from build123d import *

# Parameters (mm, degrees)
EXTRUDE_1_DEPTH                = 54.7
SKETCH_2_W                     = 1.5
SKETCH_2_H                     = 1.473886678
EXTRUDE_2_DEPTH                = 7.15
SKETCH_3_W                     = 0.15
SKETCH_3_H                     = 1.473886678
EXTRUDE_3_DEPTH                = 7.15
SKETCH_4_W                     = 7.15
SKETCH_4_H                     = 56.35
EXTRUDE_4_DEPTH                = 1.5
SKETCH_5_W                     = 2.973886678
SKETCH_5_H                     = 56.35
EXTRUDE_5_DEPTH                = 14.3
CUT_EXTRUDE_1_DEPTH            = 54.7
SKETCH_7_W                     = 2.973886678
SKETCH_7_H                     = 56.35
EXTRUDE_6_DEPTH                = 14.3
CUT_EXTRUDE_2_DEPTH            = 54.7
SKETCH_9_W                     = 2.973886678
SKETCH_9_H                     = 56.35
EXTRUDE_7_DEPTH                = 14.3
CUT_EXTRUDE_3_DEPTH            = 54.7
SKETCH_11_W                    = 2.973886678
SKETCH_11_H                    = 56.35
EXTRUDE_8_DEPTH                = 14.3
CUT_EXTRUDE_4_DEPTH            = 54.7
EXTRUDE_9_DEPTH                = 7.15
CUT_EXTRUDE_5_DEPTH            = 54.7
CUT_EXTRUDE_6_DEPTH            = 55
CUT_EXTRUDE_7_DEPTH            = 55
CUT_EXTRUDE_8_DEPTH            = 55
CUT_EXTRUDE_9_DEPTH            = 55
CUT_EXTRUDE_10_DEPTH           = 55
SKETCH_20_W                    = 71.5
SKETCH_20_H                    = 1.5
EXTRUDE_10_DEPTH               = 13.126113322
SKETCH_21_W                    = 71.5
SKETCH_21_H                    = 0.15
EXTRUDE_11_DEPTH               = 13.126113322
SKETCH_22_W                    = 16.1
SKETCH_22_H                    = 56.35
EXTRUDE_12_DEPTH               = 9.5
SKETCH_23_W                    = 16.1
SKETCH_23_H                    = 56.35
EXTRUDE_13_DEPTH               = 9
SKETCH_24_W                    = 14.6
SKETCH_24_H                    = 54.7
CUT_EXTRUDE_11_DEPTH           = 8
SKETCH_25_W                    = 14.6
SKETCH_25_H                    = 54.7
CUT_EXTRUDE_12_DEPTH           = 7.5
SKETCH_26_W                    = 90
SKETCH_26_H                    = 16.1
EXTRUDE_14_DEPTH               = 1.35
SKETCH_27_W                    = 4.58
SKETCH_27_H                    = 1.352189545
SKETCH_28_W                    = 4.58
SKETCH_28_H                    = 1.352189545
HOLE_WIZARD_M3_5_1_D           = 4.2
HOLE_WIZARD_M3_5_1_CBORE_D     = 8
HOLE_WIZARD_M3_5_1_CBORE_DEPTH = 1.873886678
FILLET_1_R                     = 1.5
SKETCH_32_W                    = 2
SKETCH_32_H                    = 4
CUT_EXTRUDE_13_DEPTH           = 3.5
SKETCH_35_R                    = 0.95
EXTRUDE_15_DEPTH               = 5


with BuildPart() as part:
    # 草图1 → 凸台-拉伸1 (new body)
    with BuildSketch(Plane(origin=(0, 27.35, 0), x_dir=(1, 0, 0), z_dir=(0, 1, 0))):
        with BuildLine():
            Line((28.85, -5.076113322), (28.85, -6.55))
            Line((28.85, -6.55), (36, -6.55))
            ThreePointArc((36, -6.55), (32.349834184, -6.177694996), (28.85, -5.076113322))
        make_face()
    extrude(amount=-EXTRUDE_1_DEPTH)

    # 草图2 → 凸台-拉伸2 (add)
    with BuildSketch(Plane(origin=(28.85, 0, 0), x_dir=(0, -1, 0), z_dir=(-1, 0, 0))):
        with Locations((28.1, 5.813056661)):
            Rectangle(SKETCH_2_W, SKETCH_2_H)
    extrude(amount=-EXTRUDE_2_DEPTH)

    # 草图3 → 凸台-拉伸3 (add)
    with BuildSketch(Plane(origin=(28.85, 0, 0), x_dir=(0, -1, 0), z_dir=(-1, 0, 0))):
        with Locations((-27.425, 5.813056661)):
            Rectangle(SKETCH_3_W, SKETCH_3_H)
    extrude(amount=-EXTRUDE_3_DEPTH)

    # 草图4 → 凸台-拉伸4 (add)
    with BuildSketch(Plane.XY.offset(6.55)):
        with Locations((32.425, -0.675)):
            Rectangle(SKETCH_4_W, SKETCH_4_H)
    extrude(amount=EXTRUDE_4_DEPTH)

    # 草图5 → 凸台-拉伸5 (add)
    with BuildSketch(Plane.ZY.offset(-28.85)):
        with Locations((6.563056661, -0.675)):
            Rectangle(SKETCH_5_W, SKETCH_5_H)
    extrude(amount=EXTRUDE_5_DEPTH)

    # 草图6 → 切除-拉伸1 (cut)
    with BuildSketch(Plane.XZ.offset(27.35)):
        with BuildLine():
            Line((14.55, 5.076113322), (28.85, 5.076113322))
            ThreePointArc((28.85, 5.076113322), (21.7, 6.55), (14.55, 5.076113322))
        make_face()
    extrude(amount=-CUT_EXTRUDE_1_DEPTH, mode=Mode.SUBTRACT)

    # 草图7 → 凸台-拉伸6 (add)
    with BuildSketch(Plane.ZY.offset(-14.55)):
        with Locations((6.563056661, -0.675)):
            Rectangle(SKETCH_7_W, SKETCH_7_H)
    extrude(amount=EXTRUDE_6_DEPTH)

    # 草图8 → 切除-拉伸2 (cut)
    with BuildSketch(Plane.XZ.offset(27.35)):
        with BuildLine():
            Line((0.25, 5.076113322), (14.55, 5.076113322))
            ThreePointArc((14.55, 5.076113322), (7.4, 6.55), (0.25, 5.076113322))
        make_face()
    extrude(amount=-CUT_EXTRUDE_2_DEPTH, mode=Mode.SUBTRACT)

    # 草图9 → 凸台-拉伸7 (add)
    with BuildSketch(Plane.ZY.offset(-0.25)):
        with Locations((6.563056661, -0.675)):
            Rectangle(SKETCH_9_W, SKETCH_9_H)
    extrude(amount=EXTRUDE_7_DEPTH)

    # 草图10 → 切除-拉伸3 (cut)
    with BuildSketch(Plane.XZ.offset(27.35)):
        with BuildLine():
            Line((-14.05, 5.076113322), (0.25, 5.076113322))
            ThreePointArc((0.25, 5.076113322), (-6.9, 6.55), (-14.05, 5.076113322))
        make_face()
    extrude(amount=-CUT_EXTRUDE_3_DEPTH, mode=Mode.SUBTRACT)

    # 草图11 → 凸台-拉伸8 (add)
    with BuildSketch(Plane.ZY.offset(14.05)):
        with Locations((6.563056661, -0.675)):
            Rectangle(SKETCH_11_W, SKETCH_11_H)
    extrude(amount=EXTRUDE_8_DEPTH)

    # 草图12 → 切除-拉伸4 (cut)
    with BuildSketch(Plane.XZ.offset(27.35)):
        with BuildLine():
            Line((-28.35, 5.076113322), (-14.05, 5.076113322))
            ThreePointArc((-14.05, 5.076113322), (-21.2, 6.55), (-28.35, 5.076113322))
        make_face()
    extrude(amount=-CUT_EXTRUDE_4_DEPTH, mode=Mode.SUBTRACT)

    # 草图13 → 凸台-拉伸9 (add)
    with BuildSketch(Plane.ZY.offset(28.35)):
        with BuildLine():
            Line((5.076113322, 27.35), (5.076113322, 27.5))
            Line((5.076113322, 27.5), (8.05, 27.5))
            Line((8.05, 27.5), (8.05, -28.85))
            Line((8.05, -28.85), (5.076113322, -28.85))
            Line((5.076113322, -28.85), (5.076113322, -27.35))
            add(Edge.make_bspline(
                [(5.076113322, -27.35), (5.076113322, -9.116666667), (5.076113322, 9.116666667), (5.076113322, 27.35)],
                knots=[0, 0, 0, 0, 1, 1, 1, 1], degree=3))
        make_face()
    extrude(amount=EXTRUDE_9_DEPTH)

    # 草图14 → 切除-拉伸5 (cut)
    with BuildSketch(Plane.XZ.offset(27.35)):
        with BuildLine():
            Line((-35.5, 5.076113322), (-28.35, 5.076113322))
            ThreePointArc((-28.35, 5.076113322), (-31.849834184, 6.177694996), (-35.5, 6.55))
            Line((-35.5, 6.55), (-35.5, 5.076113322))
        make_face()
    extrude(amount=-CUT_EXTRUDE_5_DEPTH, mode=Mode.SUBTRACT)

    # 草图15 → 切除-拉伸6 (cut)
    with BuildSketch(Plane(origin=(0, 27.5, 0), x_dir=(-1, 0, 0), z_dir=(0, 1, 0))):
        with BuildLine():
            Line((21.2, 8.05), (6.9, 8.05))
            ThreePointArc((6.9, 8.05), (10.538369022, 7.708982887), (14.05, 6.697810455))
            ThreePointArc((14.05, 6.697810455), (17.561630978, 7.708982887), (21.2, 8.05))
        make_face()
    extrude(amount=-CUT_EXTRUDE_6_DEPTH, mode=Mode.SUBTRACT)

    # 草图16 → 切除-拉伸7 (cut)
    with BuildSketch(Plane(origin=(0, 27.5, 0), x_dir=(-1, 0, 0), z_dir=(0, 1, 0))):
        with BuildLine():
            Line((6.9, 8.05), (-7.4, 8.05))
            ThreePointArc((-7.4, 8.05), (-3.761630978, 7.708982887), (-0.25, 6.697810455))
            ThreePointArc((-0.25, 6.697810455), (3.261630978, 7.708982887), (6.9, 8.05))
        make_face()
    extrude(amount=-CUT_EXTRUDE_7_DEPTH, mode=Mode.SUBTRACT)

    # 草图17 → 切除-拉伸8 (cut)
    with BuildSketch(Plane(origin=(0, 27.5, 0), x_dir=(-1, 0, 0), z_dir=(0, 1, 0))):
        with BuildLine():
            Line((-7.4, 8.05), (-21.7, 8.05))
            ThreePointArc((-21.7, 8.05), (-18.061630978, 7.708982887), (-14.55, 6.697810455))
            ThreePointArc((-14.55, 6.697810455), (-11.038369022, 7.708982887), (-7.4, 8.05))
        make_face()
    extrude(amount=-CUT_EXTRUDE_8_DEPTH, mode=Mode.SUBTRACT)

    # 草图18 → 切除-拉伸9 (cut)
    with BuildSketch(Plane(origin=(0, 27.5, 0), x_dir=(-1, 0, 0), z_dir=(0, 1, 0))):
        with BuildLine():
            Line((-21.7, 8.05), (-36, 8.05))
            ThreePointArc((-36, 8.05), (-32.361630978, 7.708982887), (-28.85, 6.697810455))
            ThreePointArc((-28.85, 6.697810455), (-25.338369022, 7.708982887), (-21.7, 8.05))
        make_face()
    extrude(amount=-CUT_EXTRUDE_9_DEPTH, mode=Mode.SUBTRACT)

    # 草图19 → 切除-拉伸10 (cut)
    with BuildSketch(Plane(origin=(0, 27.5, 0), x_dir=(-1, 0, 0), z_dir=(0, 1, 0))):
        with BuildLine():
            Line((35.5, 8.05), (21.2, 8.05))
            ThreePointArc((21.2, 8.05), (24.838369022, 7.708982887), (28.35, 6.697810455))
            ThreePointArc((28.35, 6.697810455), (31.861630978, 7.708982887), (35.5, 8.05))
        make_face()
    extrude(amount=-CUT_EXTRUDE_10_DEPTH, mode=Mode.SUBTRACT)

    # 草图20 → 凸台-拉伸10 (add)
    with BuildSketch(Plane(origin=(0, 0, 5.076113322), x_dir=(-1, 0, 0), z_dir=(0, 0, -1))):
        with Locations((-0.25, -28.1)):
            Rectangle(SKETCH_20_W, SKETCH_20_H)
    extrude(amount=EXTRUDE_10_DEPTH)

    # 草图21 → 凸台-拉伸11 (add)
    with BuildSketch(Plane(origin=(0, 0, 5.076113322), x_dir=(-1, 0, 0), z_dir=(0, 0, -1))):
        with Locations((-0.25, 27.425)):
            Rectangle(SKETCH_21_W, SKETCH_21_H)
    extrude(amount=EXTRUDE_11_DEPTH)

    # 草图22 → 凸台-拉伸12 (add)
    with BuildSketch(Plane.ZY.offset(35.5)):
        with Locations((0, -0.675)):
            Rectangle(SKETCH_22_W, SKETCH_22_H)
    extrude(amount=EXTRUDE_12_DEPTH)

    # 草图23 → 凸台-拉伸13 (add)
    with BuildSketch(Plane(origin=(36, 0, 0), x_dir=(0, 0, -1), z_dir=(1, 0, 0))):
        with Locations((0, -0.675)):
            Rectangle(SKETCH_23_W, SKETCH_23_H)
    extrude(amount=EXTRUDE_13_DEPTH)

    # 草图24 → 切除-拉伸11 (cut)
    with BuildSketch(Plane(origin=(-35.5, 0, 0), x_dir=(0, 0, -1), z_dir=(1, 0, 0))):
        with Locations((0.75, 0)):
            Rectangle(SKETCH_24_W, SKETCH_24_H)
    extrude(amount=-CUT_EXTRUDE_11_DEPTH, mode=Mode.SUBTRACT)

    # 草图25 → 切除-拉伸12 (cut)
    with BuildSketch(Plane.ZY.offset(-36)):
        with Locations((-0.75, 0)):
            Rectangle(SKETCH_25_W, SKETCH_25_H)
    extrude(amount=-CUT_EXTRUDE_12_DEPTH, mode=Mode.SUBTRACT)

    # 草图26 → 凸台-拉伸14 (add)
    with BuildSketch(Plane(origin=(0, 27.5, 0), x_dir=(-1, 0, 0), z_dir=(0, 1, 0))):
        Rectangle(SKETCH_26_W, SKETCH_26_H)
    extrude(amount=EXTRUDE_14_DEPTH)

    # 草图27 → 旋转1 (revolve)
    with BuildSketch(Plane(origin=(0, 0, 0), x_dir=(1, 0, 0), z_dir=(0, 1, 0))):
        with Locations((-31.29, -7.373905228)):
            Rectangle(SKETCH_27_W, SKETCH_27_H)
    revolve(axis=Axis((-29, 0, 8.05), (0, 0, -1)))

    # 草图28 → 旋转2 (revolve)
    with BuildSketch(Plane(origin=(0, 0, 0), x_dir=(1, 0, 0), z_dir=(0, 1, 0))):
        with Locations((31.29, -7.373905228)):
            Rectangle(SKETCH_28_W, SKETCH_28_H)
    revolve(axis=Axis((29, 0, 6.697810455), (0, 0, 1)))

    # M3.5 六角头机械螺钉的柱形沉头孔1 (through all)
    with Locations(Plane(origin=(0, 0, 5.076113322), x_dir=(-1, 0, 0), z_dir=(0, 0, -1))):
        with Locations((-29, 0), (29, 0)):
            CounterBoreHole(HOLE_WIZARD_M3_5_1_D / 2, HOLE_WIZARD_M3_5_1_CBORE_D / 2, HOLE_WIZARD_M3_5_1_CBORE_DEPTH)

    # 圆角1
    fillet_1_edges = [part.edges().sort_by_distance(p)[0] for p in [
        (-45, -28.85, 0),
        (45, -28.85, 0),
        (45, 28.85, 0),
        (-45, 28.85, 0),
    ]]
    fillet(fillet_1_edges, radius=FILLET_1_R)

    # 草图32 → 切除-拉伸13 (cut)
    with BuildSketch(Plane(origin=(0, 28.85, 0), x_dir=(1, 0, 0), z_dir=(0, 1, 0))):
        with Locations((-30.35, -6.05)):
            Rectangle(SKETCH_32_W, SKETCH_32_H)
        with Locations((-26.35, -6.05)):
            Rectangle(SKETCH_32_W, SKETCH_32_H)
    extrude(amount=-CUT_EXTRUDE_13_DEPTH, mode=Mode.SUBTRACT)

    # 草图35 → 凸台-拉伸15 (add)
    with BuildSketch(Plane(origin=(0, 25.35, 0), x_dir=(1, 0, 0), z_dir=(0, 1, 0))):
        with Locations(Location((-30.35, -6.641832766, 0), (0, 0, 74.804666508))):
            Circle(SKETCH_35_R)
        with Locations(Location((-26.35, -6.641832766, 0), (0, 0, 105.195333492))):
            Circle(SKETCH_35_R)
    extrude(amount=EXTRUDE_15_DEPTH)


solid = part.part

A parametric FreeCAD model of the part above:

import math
import FreeCAD as App
import Part
import Sketcher
Q = App.Units.Quantity


def edges_at(feature, points):
    """Names of the edges that pass closest to the given points."""
    edges = feature.Shape.Edges
    near = lambda p: min(range(len(edges)), key=lambda i: edges[i].distToShape(Part.Vertex(*p))[0])
    return sorted({f"Edge{near(p) + 1}" for p in points})

doc = App.newDocument("Part")
body = doc.addObject("PartDesign::Body", "Body")

# Sketch on XZ plane
sketch1 = body.newObject("Sketcher::SketchObject", "Sketch")
sketch1.AttachmentSupport = (doc.getObject("XZ_Plane"), [""])
sketch1.MapMode = "FlatFace"
sketch1.AttachmentOffset = App.Placement(App.Vector(0, 0, -27.35), App.Rotation())
sketch1.addGeometry([
    Part.LineSegment(App.Vector(28.85, 5.076113, 0), App.Vector(28.85, 6.55, 0)),
    Part.LineSegment(App.Vector(28.85, 6.55, 0), App.Vector(36, 6.55, 0)),
    Part.ArcOfCircle(Part.Circle(App.Vector(36, -11.529695, 0), App.Vector(0, 0, 1), 18.079695), math.radians(90), math.radians(113.29537)),
], False)
sketch1.addConstraint([
    Sketcher.Constraint("Coincident", 0, 2, 1, 1),
    Sketcher.Constraint("Tangent", 1, 2, 2, 1),
    Sketcher.Constraint("Coincident", 2, 2, 0, 1),
    Sketcher.Constraint("Vertical", 0),
    Sketcher.Constraint("Horizontal", 1),
    Sketcher.Constraint("DistanceX", -1, 1, 2, 3, Q("36 mm")),
    Sketcher.Constraint("DistanceX", 1, 1, 1, 2, Q("7.15 mm")),
    Sketcher.Constraint("DistanceY", -1, 1, 0, 2, Q("6.55 mm")),
    Sketcher.Constraint("Radius", 2, Q("18.079695 mm")),
])
pad1 = body.newObject("PartDesign::Pad", "Pad")
pad1.Profile = sketch1
pad1.Length = 54.7

# Sketch on YZ plane
sketch2 = body.newObject("Sketcher::SketchObject", "Sketch001")
sketch2.AttachmentSupport = (doc.getObject("YZ_Plane"), [""])
sketch2.MapMode = "FlatFace"
sketch2.AttachmentOffset = App.Placement(App.Vector(0, 0, 28.85), App.Rotation())
sketch2.addGeometry([
    Part.LineSegment(App.Vector(-27.35, 6.55, 0), App.Vector(-27.35, 5.076113, 0)),
    Part.LineSegment(App.Vector(-27.35, 5.076113, 0), App.Vector(-28.85, 5.076113, 0)),
    Part.LineSegment(App.Vector(-28.85, 5.076113, 0), App.Vector(-28.85, 6.55, 0)),
    Part.LineSegment(App.Vector(-28.85, 6.55, 0), App.Vector(-27.35, 6.55, 0)),
], False)
sketch2.addConstraint([
    Sketcher.Constraint("Coincident", 0, 2, 1, 1),
    Sketcher.Constraint("Coincident", 1, 2, 2, 1),
    Sketcher.Constraint("Coincident", 2, 2, 3, 1),
    Sketcher.Constraint("Coincident", 3, 2, 0, 1),
    Sketcher.Constraint("Vertical", 0),
    Sketcher.Constraint("Horizontal", 1),
    Sketcher.Constraint("Vertical", 2),
    Sketcher.Constraint("Horizontal", 3),
    Sketcher.Constraint("DistanceX", 1, 2, 1, 1, Q("1.5 mm")),
    Sketcher.Constraint("DistanceX", 0, 2, -1, 1, Q("27.35 mm")),
    Sketcher.Constraint("DistanceY", -1, 1, 2, 2, Q("6.55 mm")),
    Sketcher.Constraint("DistanceY", 0, 2, 0, 1, Q("1.473887 mm")),
])
pad2 = body.newObject("PartDesign::Pad", "Pad001")
pad2.Profile = sketch2
pad2.Length = 7.15

# Sketch on YZ plane
sketch3 = body.newObject("Sketcher::SketchObject", "Sketch002")
sketch3.AttachmentSupport = (doc.getObject("YZ_Plane"), [""])
sketch3.MapMode = "FlatFace"
sketch3.AttachmentOffset = App.Placement(App.Vector(0, 0, 28.85), App.Rotation())
sketch3.addGeometry([
    Part.LineSegment(App.Vector(27.5, 6.55, 0), App.Vector(27.5, 5.076113, 0)),
    Part.LineSegment(App.Vector(27.5, 5.076113, 0), App.Vector(27.35, 5.076113, 0)),
    Part.LineSegment(App.Vector(27.35, 5.076113, 0), App.Vector(27.35, 6.55, 0)),
    Part.LineSegment(App.Vector(27.35, 6.55, 0), App.Vector(27.5, 6.55, 0)),
], False)
sketch3.addConstraint([
    Sketcher.Constraint("Coincident", 0, 2, 1, 1),
    Sketcher.Constraint("Coincident", 1, 2, 2, 1),
    Sketcher.Constraint("Coincident", 2, 2, 3, 1),
    Sketcher.Constraint("Coincident", 3, 2, 0, 1),
    Sketcher.Constraint("Vertical", 0),
    Sketcher.Constraint("Horizontal", 1),
    Sketcher.Constraint("Vertical", 2),
    Sketcher.Constraint("Horizontal", 3),
    Sketcher.Constraint("DistanceX", 1, 2, 1, 1, Q("0.15 mm")),
    Sketcher.Constraint("DistanceX", -1, 1, 0, 2, Q("27.5 mm")),
    Sketcher.Constraint("DistanceY", -1, 1, 2, 2, Q("6.55 mm")),
    Sketcher.Constraint("DistanceY", 0, 2, 0, 1, Q("1.473887 mm")),
])
pad3 = body.newObject("PartDesign::Pad", "Pad002")
pad3.Profile = sketch3
pad3.Length = 7.15

# Sketch on XY plane
sketch4 = body.newObject("Sketcher::SketchObject", "Sketch003")
sketch4.AttachmentSupport = (doc.getObject("XY_Plane"), [""])
sketch4.MapMode = "FlatFace"
sketch4.AttachmentOffset = App.Placement(App.Vector(0, 0, 6.55), App.Rotation())
sketch4.addGeometry([
    Part.LineSegment(App.Vector(28.85, 27.5, 0), App.Vector(28.85, -28.85, 0)),
    Part.LineSegment(App.Vector(28.85, -28.85, 0), App.Vector(36, -28.85, 0)),
    Part.LineSegment(App.Vector(36, -28.85, 0), App.Vector(36, 27.5, 0)),
    Part.LineSegment(App.Vector(36, 27.5, 0), App.Vector(28.85, 27.5, 0)),
], False)
sketch4.addConstraint([
    Sketcher.Constraint("Coincident", 0, 2, 1, 1),
    Sketcher.Constraint("Coincident", 1, 2, 2, 1),
    Sketcher.Constraint("Coincident", 2, 2, 3, 1),
    Sketcher.Constraint("Coincident", 3, 2, 0, 1),
    Sketcher.Constraint("Vertical", 0),
    Sketcher.Constraint("Horizontal", 1),
    Sketcher.Constraint("Vertical", 2),
    Sketcher.Constraint("Horizontal", 3),
    Sketcher.Constraint("DistanceX", -1, 1, 1, 2, Q("36 mm")),
    Sketcher.Constraint("DistanceX", 1, 1, 1, 2, Q("7.15 mm")),
    Sketcher.Constraint("DistanceY", 0, 2, 0, 1, Q("56.35 mm")),
    Sketcher.Constraint("DistanceY", -1, 1, 2, 2, Q("27.5 mm")),
])
pad4 = body.newObject("PartDesign::Pad", "Pad003")
pad4.Profile = sketch4
pad4.Length = 1.5

# Sketch on YZ plane
sketch5 = body.newObject("Sketcher::SketchObject", "Sketch004")
sketch5.AttachmentSupport = (doc.getObject("YZ_Plane"), [""])
sketch5.MapMode = "FlatFace"
sketch5.AttachmentOffset = App.Placement(App.Vector(0, 0, 28.85), App.Rotation())
sketch5.addGeometry([
    Part.LineSegment(App.Vector(27.5, 5.076113, 0), App.Vector(-28.85, 5.076113, 0)),
    Part.LineSegment(App.Vector(-28.85, 5.076113, 0), App.Vector(-28.85, 8.05, 0)),
    Part.LineSegment(App.Vector(-28.85, 8.05, 0), App.Vector(27.5, 8.05, 0)),
    Part.LineSegment(App.Vector(27.5, 8.05, 0), App.Vector(27.5, 5.076113, 0)),
], False)
sketch5.addConstraint([
    Sketcher.Constraint("Coincident", 0, 2, 1, 1),
    Sketcher.Constraint("Coincident", 1, 2, 2, 1),
    Sketcher.Constraint("Coincident", 2, 2, 3, 1),
    Sketcher.Constraint("Coincident", 3, 2, 0, 1),
    Sketcher.Constraint("Horizontal", 0),
    Sketcher.Constraint("Vertical", 1),
    Sketcher.Constraint("Horizontal", 2),
    Sketcher.Constraint("Vertical", 3),
    Sketcher.Constraint("DistanceX", 0, 2, 0, 1, Q("56.35 mm")),
    Sketcher.Constraint("DistanceX", -1, 1, 2, 2, Q("27.5 mm")),
    Sketcher.Constraint("DistanceY", -1, 1, 1, 2, Q("8.05 mm")),
    Sketcher.Constraint("DistanceY", 1, 1, 1, 2, Q("2.973887 mm")),
])
pad5 = body.newObject("PartDesign::Pad", "Pad004")
pad5.Profile = sketch5
pad5.Length = 14.3
pad5.Reversed = True

# Sketch on XZ plane
sketch6 = body.newObject("Sketcher::SketchObject", "Sketch005")
sketch6.AttachmentSupport = (doc.getObject("XZ_Plane"), [""])
sketch6.MapMode = "FlatFace"
sketch6.AttachmentOffset = App.Placement(App.Vector(0, 0, 27.35), App.Rotation())
sketch6.addGeometry([
    Part.LineSegment(App.Vector(14.55, 5.076113, 0), App.Vector(28.85, 5.076113, 0)),
    Part.ArcOfCircle(Part.Circle(App.Vector(21.7, -11.529695, 0), App.Vector(0, 0, 1), 18.079695), math.radians(66.70463), math.radians(113.29537)),
], False)
sketch6.addConstraint([
    Sketcher.Constraint("Coincident", 0, 1, 1, 2),
    Sketcher.Constraint("Coincident", 1, 1, 0, 2),
    Sketcher.Constraint("Horizontal", 0),
    Sketcher.Constraint("DistanceX", 0, 1, 0, 2, Q("14.3 mm")),
    Sketcher.Constraint("DistanceX", -1, 1, 1, 3, Q("21.7 mm")),
    Sketcher.Constraint("Radius", 1, Q("18.079695 mm")),
    Sketcher.Constraint("DistanceY", 1, 3, -1, 1, Q("11.529695 mm")),
])
pocket1 = body.newObject("PartDesign::Pocket", "Pocket")
pocket1.Profile = sketch6
pocket1.Length = 54.7

# Sketch on YZ plane
sketch7 = body.newObject("Sketcher::SketchObject", "Sketch006")
sketch7.AttachmentSupport = (doc.getObject("YZ_Plane"), [""])
sketch7.MapMode = "FlatFace"
sketch7.AttachmentOffset = App.Placement(App.Vector(0, 0, 14.55), App.Rotation())
sketch7.addGeometry([
    Part.LineSegment(App.Vector(27.5, 5.076113, 0), App.Vector(-28.85, 5.076113, 0)),
    Part.LineSegment(App.Vector(-28.85, 5.076113, 0), App.Vector(-28.85, 8.05, 0)),
    Part.LineSegment(App.Vector(-28.85, 8.05, 0), App.Vector(27.5, 8.05, 0)),
    Part.LineSegment(App.Vector(27.5, 8.05, 0), App.Vector(27.5, 5.076113, 0)),
], False)
sketch7.addConstraint([
    Sketcher.Constraint("Coincident", 0, 2, 1, 1),
    Sketcher.Constraint("Coincident", 1, 2, 2, 1),
    Sketcher.Constraint("Coincident", 2, 2, 3, 1),
    Sketcher.Constraint("Coincident", 3, 2, 0, 1),
    Sketcher.Constraint("Horizontal", 0),
    Sketcher.Constraint("Vertical", 1),
    Sketcher.Constraint("Horizontal", 2),
    Sketcher.Constraint("Vertical", 3),
    Sketcher.Constraint("DistanceX", 0, 2, 0, 1, Q("56.35 mm")),
    Sketcher.Constraint("DistanceX", -1, 1, 2, 2, Q("27.5 mm")),
    Sketcher.Constraint("DistanceY", -1, 1, 1, 2, Q("8.05 mm")),
    Sketcher.Constraint("DistanceY", 1, 1, 1, 2, Q("2.973887 mm")),
])
pad6 = body.newObject("PartDesign::Pad", "Pad005")
pad6.Profile = sketch7
pad6.Length = 14.3
pad6.Reversed = True

# Sketch on XZ plane
sketch8 = body.newObject("Sketcher::SketchObject", "Sketch007")
sketch8.AttachmentSupport = (doc.getObject("XZ_Plane"), [""])
sketch8.MapMode = "FlatFace"
sketch8.AttachmentOffset = App.Placement(App.Vector(0, 0, 27.35), App.Rotation())
sketch8.addGeometry([
    Part.LineSegment(App.Vector(0.25, 5.076113, 0), App.Vector(14.55, 5.076113, 0)),
    Part.ArcOfCircle(Part.Circle(App.Vector(7.4, -11.529695, 0), App.Vector(0, 0, 1), 18.079695), math.radians(66.70463), math.radians(113.29537)),
], False)
sketch8.addConstraint([
    Sketcher.Constraint("Coincident", 0, 1, 1, 2),
    Sketcher.Constraint("Coincident", 1, 1, 0, 2),
    Sketcher.Constraint("Horizontal", 0),
    Sketcher.Constraint("DistanceX", 0, 1, 0, 2, Q("14.3 mm")),
    Sketcher.Constraint("DistanceX", -1, 1, 1, 3, Q("7.4 mm")),
    Sketcher.Constraint("Radius", 1, Q("18.079695 mm")),
    Sketcher.Constraint("DistanceY", 1, 3, -1, 1, Q("11.529695 mm")),
])
pocket2 = body.newObject("PartDesign::Pocket", "Pocket001")
pocket2.Profile = sketch8
pocket2.Length = 54.7

# Sketch on YZ plane
sketch9 = body.newObject("Sketcher::SketchObject", "Sketch008")
sketch9.AttachmentSupport = (doc.getObject("YZ_Plane"), [""])
sketch9.MapMode = "FlatFace"
sketch9.AttachmentOffset = App.Placement(App.Vector(0, 0, 0.25), App.Rotation())
sketch9.addGeometry([
    Part.LineSegment(App.Vector(27.5, 5.076113, 0), App.Vector(-28.85, 5.076113, 0)),
    Part.LineSegment(App.Vector(-28.85, 5.076113, 0), App.Vector(-28.85, 8.05, 0)),
    Part.LineSegment(App.Vector(-28.85, 8.05, 0), App.Vector(27.5, 8.05, 0)),
    Part.LineSegment(App.Vector(27.5, 8.05, 0), App.Vector(27.5, 5.076113, 0)),
], False)
sketch9.addConstraint([
    Sketcher.Constraint("Coincident", 0, 2, 1, 1),
    Sketcher.Constraint("Coincident", 1, 2, 2, 1),
    Sketcher.Constraint("Coincident", 2, 2, 3, 1),
    Sketcher.Constraint("Coincident", 3, 2, 0, 1),
    Sketcher.Constraint("Horizontal", 0),
    Sketcher.Constraint("Vertical", 1),
    Sketcher.Constraint("Horizontal", 2),
    Sketcher.Constraint("Vertical", 3),
    Sketcher.Constraint("DistanceX", 0, 2, 0, 1, Q("56.35 mm")),
    Sketcher.Constraint("DistanceX", -1, 1, 2, 2, Q("27.5 mm")),
    Sketcher.Constraint("DistanceY", -1, 1, 1, 2, Q("8.05 mm")),
    Sketcher.Constraint("DistanceY", 1, 1, 1, 2, Q("2.973887 mm")),
])
pad7 = body.newObject("PartDesign::Pad", "Pad006")
pad7.Profile = sketch9
pad7.Length = 14.3
pad7.Reversed = True

# Sketch on XZ plane
sketch10 = body.newObject("Sketcher::SketchObject", "Sketch009")
sketch10.AttachmentSupport = (doc.getObject("XZ_Plane"), [""])
sketch10.MapMode = "FlatFace"
sketch10.AttachmentOffset = App.Placement(App.Vector(0, 0, 27.35), App.Rotation())
sketch10.addGeometry([
    Part.LineSegment(App.Vector(-14.05, 5.076113, 0), App.Vector(0.25, 5.076113, 0)),
    Part.ArcOfCircle(Part.Circle(App.Vector(-6.9, -11.529695, 0), App.Vector(0, 0, 1), 18.079695), math.radians(66.70463), math.radians(113.29537)),
], False)
sketch10.addConstraint([
    Sketcher.Constraint("Coincident", 0, 1, 1, 2),
    Sketcher.Constraint("Coincident", 1, 1, 0, 2),
    Sketcher.Constraint("Horizontal", 0),
    Sketcher.Constraint("DistanceX", 0, 1, 0, 2, Q("14.3 mm")),
    Sketcher.Constraint("DistanceX", 1, 3, -1, 1, Q("6.9 mm")),
    Sketcher.Constraint("Radius", 1, Q("18.079695 mm")),
    Sketcher.Constraint("DistanceY", 1, 3, -1, 1, Q("11.529695 mm")),
])
pocket3 = body.newObject("PartDesign::Pocket", "Pocket002")
pocket3.Profile = sketch10
pocket3.Length = 54.7

# Sketch on YZ plane
sketch11 = body.newObject("Sketcher::SketchObject", "Sketch010")
sketch11.AttachmentSupport = (doc.getObject("YZ_Plane"), [""])
sketch11.MapMode = "FlatFace"
sketch11.AttachmentOffset = App.Placement(App.Vector(0, 0, -14.05), App.Rotation())
sketch11.addGeometry([
    Part.LineSegment(App.Vector(27.5, 5.076113, 0), App.Vector(-28.85, 5.076113, 0)),
    Part.LineSegment(App.Vector(-28.85, 5.076113, 0), App.Vector(-28.85, 8.05, 0)),
    Part.LineSegment(App.Vector(-28.85, 8.05, 0), App.Vector(27.5, 8.05, 0)),
    Part.LineSegment(App.Vector(27.5, 8.05, 0), App.Vector(27.5, 5.076113, 0)),
], False)
sketch11.addConstraint([
    Sketcher.Constraint("Coincident", 0, 2, 1, 1),
    Sketcher.Constraint("Coincident", 1, 2, 2, 1),
    Sketcher.Constraint("Coincident", 2, 2, 3, 1),
    Sketcher.Constraint("Coincident", 3, 2, 0, 1),
    Sketcher.Constraint("Horizontal", 0),
    Sketcher.Constraint("Vertical", 1),
    Sketcher.Constraint("Horizontal", 2),
    Sketcher.Constraint("Vertical", 3),
    Sketcher.Constraint("DistanceX", 0, 2, 0, 1, Q("56.35 mm")),
    Sketcher.Constraint("DistanceX", -1, 1, 2, 2, Q("27.5 mm")),
    Sketcher.Constraint("DistanceY", -1, 1, 1, 2, Q("8.05 mm")),
    Sketcher.Constraint("DistanceY", 1, 1, 1, 2, Q("2.973887 mm")),
])
pad8 = body.newObject("PartDesign::Pad", "Pad007")
pad8.Profile = sketch11
pad8.Length = 14.3
pad8.Reversed = True

# Sketch on XZ plane
sketch12 = body.newObject("Sketcher::SketchObject", "Sketch011")
sketch12.AttachmentSupport = (doc.getObject("XZ_Plane"), [""])
sketch12.MapMode = "FlatFace"
sketch12.AttachmentOffset = App.Placement(App.Vector(0, 0, 27.35), App.Rotation())
sketch12.addGeometry([
    Part.LineSegment(App.Vector(-28.35, 5.076113, 0), App.Vector(-14.05, 5.076113, 0)),
    Part.ArcOfCircle(Part.Circle(App.Vector(-21.2, -11.529695, 0), App.Vector(0, 0, 1), 18.079695), math.radians(66.70463), math.radians(113.29537)),
], False)
sketch12.addConstraint([
    Sketcher.Constraint("Coincident", 0, 1, 1, 2),
    Sketcher.Constraint("Coincident", 1, 1, 0, 2),
    Sketcher.Constraint("Horizontal", 0),
    Sketcher.Constraint("DistanceX", 0, 1, 0, 2, Q("14.3 mm")),
    Sketcher.Constraint("DistanceX", 1, 3, -1, 1, Q("21.2 mm")),
    Sketcher.Constraint("Radius", 1, Q("18.079695 mm")),
    Sketcher.Constraint("DistanceY", 1, 3, -1, 1, Q("11.529695 mm")),
])
pocket4 = body.newObject("PartDesign::Pocket", "Pocket003")
pocket4.Profile = sketch12
pocket4.Length = 54.7

# Sketch on YZ plane
sketch13 = body.newObject("Sketcher::SketchObject", "Sketch012")
sketch13.AttachmentSupport = (doc.getObject("YZ_Plane"), [""])
sketch13.MapMode = "FlatFace"
sketch13.AttachmentOffset = App.Placement(App.Vector(0, 0, -28.35), App.Rotation())
sketch13.addGeometry([
    Part.LineSegment(App.Vector(27.5, 5.076113, 0), App.Vector(27.35, 5.076113, 0)),  # 0
    Part.BSplineCurve([App.Vector(-27.35, 5.076113, 0), App.Vector(-9.116667, 5.076113, 0), App.Vector(9.116667, 5.076113, 0), App.Vector(27.35, 5.076113, 0)], [4, 4], [0, 1], False, 3, [1, 1, 1, 1], False),  # 1
    Part.LineSegment(App.Vector(-27.35, 5.076113, 0), App.Vector(-28.85, 5.076113, 0)),  # 2
    Part.LineSegment(App.Vector(-28.85, 5.076113, 0), App.Vector(-28.85, 8.05, 0)),  # 3
    Part.LineSegment(App.Vector(-28.85, 8.05, 0), App.Vector(27.5, 8.05, 0)),  # 4
    Part.LineSegment(App.Vector(27.5, 8.05, 0), App.Vector(27.5, 5.076113, 0)),  # 5
], False)
sketch13.addConstraint([
    Sketcher.Constraint("Block", 1),
    Sketcher.Constraint("Coincident", 0, 2, 1, 2),
    Sketcher.Constraint("Coincident", 1, 1, 2, 1),
    Sketcher.Constraint("Coincident", 2, 2, 3, 1),
    Sketcher.Constraint("Coincident", 3, 2, 4, 1),
    Sketcher.Constraint("Coincident", 4, 2, 5, 1),
    Sketcher.Constraint("Coincident", 5, 2, 0, 1),
    Sketcher.Constraint("Horizontal", 0),
    Sketcher.Constraint("Horizontal", 2),
    Sketcher.Constraint("Vertical", 3),
    Sketcher.Constraint("Horizontal", 4),
    Sketcher.Constraint("Vertical", 5),
    Sketcher.Constraint("DistanceX", 2, 2, 2, 1, Q("1.5 mm")),
    Sketcher.Constraint("DistanceX", 0, 2, 0, 1, Q("0.15 mm")),
    Sketcher.Constraint("DistanceY", -1, 1, 3, 2, Q("8.05 mm")),
])
pad9 = body.newObject("PartDesign::Pad", "Pad008")
pad9.Profile = sketch13
pad9.Length = 7.15
pad9.Reversed = True

# Sketch on XZ plane
sketch14 = body.newObject("Sketcher::SketchObject", "Sketch013")
sketch14.AttachmentSupport = (doc.getObject("XZ_Plane"), [""])
sketch14.MapMode = "FlatFace"
sketch14.AttachmentOffset = App.Placement(App.Vector(0, 0, 27.35), App.Rotation())
sketch14.addGeometry([
    Part.LineSegment(App.Vector(-35.5, 5.076113, 0), App.Vector(-28.35, 5.076113, 0)),
    Part.ArcOfCircle(Part.Circle(App.Vector(-35.5, -11.529695, 0), App.Vector(0, 0, 1), 18.079695), math.radians(66.70463), math.radians(90)),
    Part.LineSegment(App.Vector(-35.5, 6.55, 0), App.Vector(-35.5, 5.076113, 0)),
], False)
sketch14.addConstraint([
    Sketcher.Constraint("Coincident", 0, 2, 1, 1),
    Sketcher.Constraint("Coincident", 1, 2, 2, 1),
    Sketcher.Constraint("Coincident", 2, 2, 0, 1),
    Sketcher.Constraint("Horizontal", 0),
    Sketcher.Constraint("Vertical", 2),
    Sketcher.Constraint("DistanceX", 0, 1, 0, 2, Q("7.15 mm")),
    Sketcher.Constraint("DistanceX", 1, 3, -1, 1, Q("35.5 mm")),
    Sketcher.Constraint("DistanceX", 1, 2, -1, 1, Q("35.5 mm")),
    Sketcher.Constraint("DistanceY", -1, 1, 1, 2, Q("6.55 mm")),
    Sketcher.Constraint("Radius", 1, Q("18.079695 mm")),
])
pocket5 = body.newObject("PartDesign::Pocket", "Pocket004")
pocket5.Profile = sketch14
pocket5.Length = 54.7

# Sketch on XZ plane
sketch15 = body.newObject("Sketcher::SketchObject", "Sketch014")
sketch15.AttachmentSupport = (doc.getObject("XZ_Plane"), [""])
sketch15.MapMode = "FlatFace"
sketch15.AttachmentOffset = App.Placement(App.Vector(0, 0, -27.5), App.Rotation())
sketch15.addGeometry([
    Part.LineSegment(App.Vector(-21.2, 8.05, 0), App.Vector(-6.9, 8.05, 0)),
    Part.ArcOfCircle(Part.Circle(App.Vector(-6.9, -11.529695, 0), App.Vector(0, 0, 1), 19.579695), math.radians(90), math.radians(111.418306)),
    Part.ArcOfCircle(Part.Circle(App.Vector(-21.2, -11.529695, 0), App.Vector(0, 0, 1), 19.579695), math.radians(68.581694), math.radians(90)),
], False)
sketch15.addConstraint([
    Sketcher.Constraint("Tangent", 0, 2, 1, 1),
    Sketcher.Constraint("Coincident", 1, 2, 2, 1),
    Sketcher.Constraint("Tangent", 2, 2, 0, 1),
    Sketcher.Constraint("Horizontal", 0),
    Sketcher.Constraint("Equal", 1, 2),
    Sketcher.Constraint("DistanceX", 0, 1, 0, 2, Q("14.3 mm")),
    Sketcher.Constraint("DistanceX", 1, 3, -1, 1, Q("6.9 mm")),
    Sketcher.Constraint("DistanceY", -1, 1, 0, 2, Q("8.05 mm")),
    Sketcher.Constraint("Radius", 1, Q("19.579695 mm")),
])
pocket6 = body.newObject("PartDesign::Pocket", "Pocket005")
pocket6.Profile = sketch15
pocket6.Length = 55
pocket6.Reversed = True

# Sketch on XZ plane
sketch16 = body.newObject("Sketcher::SketchObject", "Sketch015")
sketch16.AttachmentSupport = (doc.getObject("XZ_Plane"), [""])
sketch16.MapMode = "FlatFace"
sketch16.AttachmentOffset = App.Placement(App.Vector(0, 0, -27.5), App.Rotation())
sketch16.addGeometry([
    Part.LineSegment(App.Vector(-6.9, 8.05, 0), App.Vector(7.4, 8.05, 0)),
    Part.ArcOfCircle(Part.Circle(App.Vector(7.4, -11.529695, 0), App.Vector(0, 0, 1), 19.579695), math.radians(90), math.radians(111.418306)),
    Part.ArcOfCircle(Part.Circle(App.Vector(-6.9, -11.529695, 0), App.Vector(0, 0, 1), 19.579695), math.radians(68.581694), math.radians(90)),
], False)
sketch16.addConstraint([
    Sketcher.Constraint("Tangent", 0, 2, 1, 1),
    Sketcher.Constraint("Coincident", 1, 2, 2, 1),
    Sketcher.Constraint("Tangent", 2, 2, 0, 1),
    Sketcher.Constraint("Horizontal", 0),
    Sketcher.Constraint("Equal", 1, 2),
    Sketcher.Constraint("DistanceX", 0, 1, 0, 2, Q("14.3 mm")),
    Sketcher.Constraint("DistanceX", -1, 1, 1, 3, Q("7.4 mm")),
    Sketcher.Constraint("DistanceY", -1, 1, 0, 2, Q("8.05 mm")),
    Sketcher.Constraint("Radius", 1, Q("19.579695 mm")),
])
pocket7 = body.newObject("PartDesign::Pocket", "Pocket006")
pocket7.Profile = sketch16
pocket7.Length = 55
pocket7.Reversed = True

# Sketch on XZ plane
sketch17 = body.newObject("Sketcher::SketchObject", "Sketch016")
sketch17.AttachmentSupport = (doc.getObject("XZ_Plane"), [""])
sketch17.MapMode = "FlatFace"
sketch17.AttachmentOffset = App.Placement(App.Vector(0, 0, -27.5), App.Rotation())
sketch17.addGeometry([
    Part.LineSegment(App.Vector(7.4, 8.05, 0), App.Vector(21.7, 8.05, 0)),
    Part.ArcOfCircle(Part.Circle(App.Vector(21.7, -11.529695, 0), App.Vector(0, 0, 1), 19.579695), math.radians(90), math.radians(111.418306)),
    Part.ArcOfCircle(Part.Circle(App.Vector(7.4, -11.529695, 0), App.Vector(0, 0, 1), 19.579695), math.radians(68.581694), math.radians(90)),
], False)
sketch17.addConstraint([
    Sketcher.Constraint("Tangent", 0, 2, 1, 1),
    Sketcher.Constraint("Coincident", 1, 2, 2, 1),
    Sketcher.Constraint("Tangent", 2, 2, 0, 1),
    Sketcher.Constraint("Horizontal", 0),
    Sketcher.Constraint("Equal", 1, 2),
    Sketcher.Constraint("DistanceX", 0, 1, 0, 2, Q("14.3 mm")),
    Sketcher.Constraint("DistanceX", -1, 1, 1, 3, Q("21.7 mm")),
    Sketcher.Constraint("DistanceY", -1, 1, 0, 2, Q("8.05 mm")),
    Sketcher.Constraint("Radius", 1, Q("19.579695 mm")),
])
pocket8 = body.newObject("PartDesign::Pocket", "Pocket007")
pocket8.Profile = sketch17
pocket8.Length = 55
pocket8.Reversed = True

# Sketch on XZ plane
sketch18 = body.newObject("Sketcher::SketchObject", "Sketch017")
sketch18.AttachmentSupport = (doc.getObject("XZ_Plane"), [""])
sketch18.MapMode = "FlatFace"
sketch18.AttachmentOffset = App.Placement(App.Vector(0, 0, -27.5), App.Rotation())
sketch18.addGeometry([
    Part.LineSegment(App.Vector(21.7, 8.05, 0), App.Vector(36, 8.05, 0)),
    Part.ArcOfCircle(Part.Circle(App.Vector(36, -11.529695, 0), App.Vector(0, 0, 1), 19.579695), math.radians(90), math.radians(111.418306)),
    Part.ArcOfCircle(Part.Circle(App.Vector(21.7, -11.529695, 0), App.Vector(0, 0, 1), 19.579695), math.radians(68.581694), math.radians(90)),
], False)
sketch18.addConstraint([
    Sketcher.Constraint("Tangent", 0, 2, 1, 1),
    Sketcher.Constraint("Coincident", 1, 2, 2, 1),
    Sketcher.Constraint("Tangent", 2, 2, 0, 1),
    Sketcher.Constraint("Horizontal", 0),
    Sketcher.Constraint("Equal", 1, 2),
    Sketcher.Constraint("DistanceX", 0, 1, 0, 2, Q("14.3 mm")),
    Sketcher.Constraint("DistanceX", -1, 1, 1, 3, Q("36 mm")),
    Sketcher.Constraint("DistanceY", -1, 1, 0, 2, Q("8.05 mm")),
    Sketcher.Constraint("Radius", 1, Q("19.579695 mm")),
])
pocket9 = body.newObject("PartDesign::Pocket", "Pocket008")
pocket9.Profile = sketch18
pocket9.Length = 55
pocket9.Reversed = True

# Sketch on XZ plane
sketch19 = body.newObject("Sketcher::SketchObject", "Sketch018")
sketch19.AttachmentSupport = (doc.getObject("XZ_Plane"), [""])
sketch19.MapMode = "FlatFace"
sketch19.AttachmentOffset = App.Placement(App.Vector(0, 0, -27.5), App.Rotation())
sketch19.addGeometry([
    Part.LineSegment(App.Vector(-35.5, 8.05, 0), App.Vector(-21.2, 8.05, 0)),
    Part.ArcOfCircle(Part.Circle(App.Vector(-21.2, -11.529695, 0), App.Vector(0, 0, 1), 19.579695), math.radians(90), math.radians(111.418306)),
    Part.ArcOfCircle(Part.Circle(App.Vector(-35.5, -11.529695, 0), App.Vector(0, 0, 1), 19.579695), math.radians(68.581694), math.radians(90)),
], False)
sketch19.addConstraint([
    Sketcher.Constraint("Tangent", 0, 2, 1, 1),
    Sketcher.Constraint("Coincident", 1, 2, 2, 1),
    Sketcher.Constraint("Tangent", 2, 2, 0, 1),
    Sketcher.Constraint("Horizontal", 0),
    Sketcher.Constraint("Equal", 1, 2),
    Sketcher.Constraint("DistanceX", 0, 1, 0, 2, Q("14.3 mm")),
    Sketcher.Constraint("DistanceX", 1, 3, -1, 1, Q("21.2 mm")),
    Sketcher.Constraint("DistanceY", -1, 1, 0, 2, Q("8.05 mm")),
    Sketcher.Constraint("Radius", 1, Q("19.579695 mm")),
])
pocket10 = body.newObject("PartDesign::Pocket", "Pocket009")
pocket10.Profile = sketch19
pocket10.Length = 55
pocket10.Reversed = True

# Sketch on XY plane
sketch20 = body.newObject("Sketcher::SketchObject", "Sketch019")
sketch20.AttachmentSupport = (doc.getObject("XY_Plane"), [""])
sketch20.MapMode = "FlatFace"
sketch20.AttachmentOffset = App.Placement(App.Vector(0, 0, 5.076113), App.Rotation())
sketch20.addGeometry([
    Part.LineSegment(App.Vector(36, -27.35, 0), App.Vector(36, -28.85, 0)),
    Part.LineSegment(App.Vector(36, -28.85, 0), App.Vector(-35.5, -28.85, 0)),
    Part.LineSegment(App.Vector(-35.5, -28.85, 0), App.Vector(-35.5, -27.35, 0)),
    Part.LineSegment(App.Vector(-35.5, -27.35, 0), App.Vector(36, -27.35, 0)),
], False)
sketch20.addConstraint([
    Sketcher.Constraint("Coincident", 0, 2, 1, 1),
    Sketcher.Constraint("Coincident", 1, 2, 2, 1),
    Sketcher.Constraint("Coincident", 2, 2, 3, 1),
    Sketcher.Constraint("Coincident", 3, 2, 0, 1),
    Sketcher.Constraint("Vertical", 0),
    Sketcher.Constraint("Horizontal", 1),
    Sketcher.Constraint("Vertical", 2),
    Sketcher.Constraint("Horizontal", 3),
    Sketcher.Constraint("DistanceX", 1, 2, 1, 1, Q("71.5 mm")),
    Sketcher.Constraint("DistanceY", 0, 2, 0, 1, Q("1.5 mm")),
    Sketcher.Constraint("DistanceX", -1, 1, 0, 2, Q("36 mm")),
    Sketcher.Constraint("DistanceY", 0, 2, -1, 1, Q("28.85 mm")),
])
pad10 = body.newObject("PartDesign::Pad", "Pad009")
pad10.Profile = sketch20
pad10.Length = 13.126113
pad10.Reversed = True

# Sketch on XY plane
sketch21 = body.newObject("Sketcher::SketchObject", "Sketch020")
sketch21.AttachmentSupport = (doc.getObject("XY_Plane"), [""])
sketch21.MapMode = "FlatFace"
sketch21.AttachmentOffset = App.Placement(App.Vector(0, 0, 5.076113), App.Rotation())
sketch21.addGeometry([
    Part.LineSegment(App.Vector(36, 27.5, 0), App.Vector(36, 27.35, 0)),
    Part.LineSegment(App.Vector(36, 27.35, 0), App.Vector(-35.5, 27.35, 0)),
    Part.LineSegment(App.Vector(-35.5, 27.35, 0), App.Vector(-35.5, 27.5, 0)),
    Part.LineSegment(App.Vector(-35.5, 27.5, 0), App.Vector(36, 27.5, 0)),
], False)
sketch21.addConstraint([
    Sketcher.Constraint("Coincident", 0, 2, 1, 1),
    Sketcher.Constraint("Coincident", 1, 2, 2, 1),
    Sketcher.Constraint("Coincident", 2, 2, 3, 1),
    Sketcher.Constraint("Coincident", 3, 2, 0, 1),
    Sketcher.Constraint("Vertical", 0),
    Sketcher.Constraint("Horizontal", 1),
    Sketcher.Constraint("Vertical", 2),
    Sketcher.Constraint("Horizontal", 3),
    Sketcher.Constraint("DistanceX", 1, 2, 1, 1, Q("71.5 mm")),
    Sketcher.Constraint("DistanceX", -1, 1, 0, 2, Q("36 mm")),
    Sketcher.Constraint("DistanceY", 0, 2, 0, 1, Q("0.15 mm")),
    Sketcher.Constraint("DistanceY", -1, 1, 2, 2, Q("27.5 mm")),
])
pad11 = body.newObject("PartDesign::Pad", "Pad010")
pad11.Profile = sketch21
pad11.Length = 13.126113
pad11.Reversed = True

# Sketch on YZ plane
sketch22 = body.newObject("Sketcher::SketchObject", "Sketch021")
sketch22.AttachmentSupport = (doc.getObject("YZ_Plane"), [""])
sketch22.MapMode = "FlatFace"
sketch22.AttachmentOffset = App.Placement(App.Vector(0, 0, -35.5), App.Rotation())
sketch22.addGeometry([
    Part.LineSegment(App.Vector(27.5, -8.05, 0), App.Vector(-28.85, -8.05, 0)),
    Part.LineSegment(App.Vector(-28.85, -8.05, 0), App.Vector(-28.85, 8.05, 0)),
    Part.LineSegment(App.Vector(-28.85, 8.05, 0), App.Vector(27.5, 8.05, 0)),
    Part.LineSegment(App.Vector(27.5, 8.05, 0), App.Vector(27.5, -8.05, 0)),
], False)
sketch22.addConstraint([
    Sketcher.Constraint("Coincident", 0, 2, 1, 1),
    Sketcher.Constraint("Coincident", 1, 2, 2, 1),
    Sketcher.Constraint("Coincident", 2, 2, 3, 1),
    Sketcher.Constraint("Coincident", 3, 2, 0, 1),
    Sketcher.Constraint("Horizontal", 0),
    Sketcher.Constraint("Vertical", 1),
    Sketcher.Constraint("Horizontal", 2),
    Sketcher.Constraint("Vertical", 3),
    Sketcher.Constraint("DistanceY", 1, 1, 1, 2, Q("16.1 mm")),
    Sketcher.Constraint("DistanceX", 0, 2, 0, 1, Q("56.35 mm")),
    Sketcher.Constraint("DistanceX", -1, 1, 2, 2, Q("27.5 mm")),
    Sketcher.Constraint("DistanceY", 0, 2, -1, 1, Q("8.05 mm")),
])
pad12 = body.newObject("PartDesign::Pad", "Pad011")
pad12.Profile = sketch22
pad12.Length = 9.5
pad12.Reversed = True

# Sketch on YZ plane
sketch23 = body.newObject("Sketcher::SketchObject", "Sketch022")
sketch23.AttachmentSupport = (doc.getObject("YZ_Plane"), [""])
sketch23.MapMode = "FlatFace"
sketch23.AttachmentOffset = App.Placement(App.Vector(0, 0, 36), App.Rotation())
sketch23.addGeometry([
    Part.LineSegment(App.Vector(27.5, 8.05, 0), App.Vector(-28.85, 8.05, 0)),
    Part.LineSegment(App.Vector(-28.85, 8.05, 0), App.Vector(-28.85, -8.05, 0)),
    Part.LineSegment(App.Vector(-28.85, -8.05, 0), App.Vector(27.5, -8.05, 0)),
    Part.LineSegment(App.Vector(27.5, -8.05, 0), App.Vector(27.5, 8.05, 0)),
], False)
sketch23.addConstraint([
    Sketcher.Constraint("Coincident", 0, 2, 1, 1),
    Sketcher.Constraint("Coincident", 1, 2, 2, 1),
    Sketcher.Constraint("Coincident", 2, 2, 3, 1),
    Sketcher.Constraint("Coincident", 3, 2, 0, 1),
    Sketcher.Constraint("Horizontal", 0),
    Sketcher.Constraint("Vertical", 1),
    Sketcher.Constraint("Horizontal", 2),
    Sketcher.Constraint("Vertical", 3),
    Sketcher.Constraint("DistanceY", 1, 2, 1, 1, Q("16.1 mm")),
    Sketcher.Constraint("DistanceX", 0, 2, 0, 1, Q("56.35 mm")),
    Sketcher.Constraint("DistanceX", -1, 1, 2, 2, Q("27.5 mm")),
    Sketcher.Constraint("DistanceY", -1, 1, 0, 2, Q("8.05 mm")),
])
pad13 = body.newObject("PartDesign::Pad", "Pad012")
pad13.Profile = sketch23
pad13.Length = 9

# Sketch on YZ plane
sketch24 = body.newObject("Sketcher::SketchObject", "Sketch023")
sketch24.AttachmentSupport = (doc.getObject("YZ_Plane"), [""])
sketch24.MapMode = "FlatFace"
sketch24.AttachmentOffset = App.Placement(App.Vector(0, 0, -35.5), App.Rotation())
sketch24.addGeometry([
    Part.LineSegment(App.Vector(27.35, 6.55, 0), App.Vector(-27.35, 6.55, 0)),
    Part.LineSegment(App.Vector(-27.35, 6.55, 0), App.Vector(-27.35, -8.05, 0)),
    Part.LineSegment(App.Vector(-27.35, -8.05, 0), App.Vector(27.35, -8.05, 0)),
    Part.LineSegment(App.Vector(27.35, -8.05, 0), App.Vector(27.35, 6.55, 0)),
], False)
sketch24.addConstraint([
    Sketcher.Constraint("Coincident", 0, 2, 1, 1),
    Sketcher.Constraint("Coincident", 1, 2, 2, 1),
    Sketcher.Constraint("Coincident", 2, 2, 3, 1),
    Sketcher.Constraint("Coincident", 3, 2, 0, 1),
    Sketcher.Constraint("Horizontal", 0),
    Sketcher.Constraint("Vertical", 1),
    Sketcher.Constraint("Horizontal", 2),
    Sketcher.Constraint("Vertical", 3),
    Sketcher.Constraint("DistanceX", 0, 2, 0, 1, Q("54.7 mm")),
    Sketcher.Constraint("DistanceY", 1, 2, 1, 1, Q("14.6 mm")),
    Sketcher.Constraint("DistanceX", 0, 2, -1, 1, Q("27.35 mm")),
    Sketcher.Constraint("DistanceY", -1, 1, 0, 2, Q("6.55 mm")),
])
pocket11 = body.newObject("PartDesign::Pocket", "Pocket010")
pocket11.Profile = sketch24
pocket11.Length = 8

# Sketch on YZ plane
sketch25 = body.newObject("Sketcher::SketchObject", "Sketch024")
sketch25.AttachmentSupport = (doc.getObject("YZ_Plane"), [""])
sketch25.MapMode = "FlatFace"
sketch25.AttachmentOffset = App.Placement(App.Vector(0, 0, 36), App.Rotation())
sketch25.addGeometry([
    Part.LineSegment(App.Vector(27.35, -8.05, 0), App.Vector(-27.35, -8.05, 0)),
    Part.LineSegment(App.Vector(-27.35, -8.05, 0), App.Vector(-27.35, 6.55, 0)),
    Part.LineSegment(App.Vector(-27.35, 6.55, 0), App.Vector(27.35, 6.55, 0)),
    Part.LineSegment(App.Vector(27.35, 6.55, 0), App.Vector(27.35, -8.05, 0)),
], False)
sketch25.addConstraint([
    Sketcher.Constraint("Coincident", 0, 2, 1, 1),
    Sketcher.Constraint("Coincident", 1, 2, 2, 1),
    Sketcher.Constraint("Coincident", 2, 2, 3, 1),
    Sketcher.Constraint("Coincident", 3, 2, 0, 1),
    Sketcher.Constraint("Horizontal", 0),
    Sketcher.Constraint("Vertical", 1),
    Sketcher.Constraint("Horizontal", 2),
    Sketcher.Constraint("Vertical", 3),
    Sketcher.Constraint("DistanceX", 0, 2, 0, 1, Q("54.7 mm")),
    Sketcher.Constraint("DistanceY", 1, 1, 1, 2, Q("14.6 mm")),
    Sketcher.Constraint("DistanceX", 0, 2, -1, 1, Q("27.35 mm")),
    Sketcher.Constraint("DistanceY", 0, 2, -1, 1, Q("8.05 mm")),
])
pocket12 = body.newObject("PartDesign::Pocket", "Pocket011")
pocket12.Profile = sketch25
pocket12.Length = 7.5
pocket12.Reversed = True

# Sketch on XZ plane
sketch26 = body.newObject("Sketcher::SketchObject", "Sketch025")
sketch26.AttachmentSupport = (doc.getObject("XZ_Plane"), [""])
sketch26.MapMode = "FlatFace"
sketch26.AttachmentOffset = App.Placement(App.Vector(0, 0, -27.5), App.Rotation())
sketch26.addGeometry([
    Part.LineSegment(App.Vector(45, 8.05, 0), App.Vector(45, -8.05, 0)),
    Part.LineSegment(App.Vector(45, -8.05, 0), App.Vector(-45, -8.05, 0)),
    Part.LineSegment(App.Vector(-45, -8.05, 0), App.Vector(-45, 8.05, 0)),
    Part.LineSegment(App.Vector(-45, 8.05, 0), App.Vector(45, 8.05, 0)),
], False)
sketch26.addConstraint([
    Sketcher.Constraint("Coincident", 0, 2, 1, 1),
    Sketcher.Constraint("Coincident", 1, 2, 2, 1),
    Sketcher.Constraint("Coincident", 2, 2, 3, 1),
    Sketcher.Constraint("Coincident", 3, 2, 0, 1),
    Sketcher.Constraint("Vertical", 0),
    Sketcher.Constraint("Horizontal", 1),
    Sketcher.Constraint("Vertical", 2),
    Sketcher.Constraint("Horizontal", 3),
    Sketcher.Constraint("Symmetric", 0, 2, 2, 2, -1, 1),
    Sketcher.Constraint("DistanceX", 1, 2, 1, 1, Q("90 mm")),
    Sketcher.Constraint("DistanceY", 0, 2, 0, 1, Q("16.1 mm")),
])
pad14 = body.newObject("PartDesign::Pad", "Pad013")
pad14.Profile = sketch26
pad14.Length = 1.35
pad14.Reversed = True

# Sketch on XZ plane
sketch27 = body.newObject("Sketcher::SketchObject", "Sketch026")
sketch27.AttachmentSupport = (doc.getObject("XZ_Plane"), [""])
sketch27.MapMode = "FlatFace"
sketch27.addGeometry([
    Part.LineSegment(App.Vector(-33.58, 6.69781, 0), App.Vector(-33.58, 8.05, 0)),
    Part.LineSegment(App.Vector(-33.58, 8.05, 0), App.Vector(-29, 8.05, 0)),
    Part.LineSegment(App.Vector(-29, 8.05, 0), App.Vector(-29, 6.69781, 0)),
    Part.LineSegment(App.Vector(-29, 6.69781, 0), App.Vector(-33.58, 6.69781, 0)),
], False)
sketch27.addGeometry(Part.LineSegment(App.Vector(-29, 8.05, 0), App.Vector(-29, 6.69781, 0)), True)  # axis
sketch27.addConstraint([
    Sketcher.Constraint("Coincident", 0, 2, 1, 1),
    Sketcher.Constraint("Coincident", 1, 2, 2, 1),
    Sketcher.Constraint("Coincident", 2, 2, 3, 1),
    Sketcher.Constraint("Coincident", 3, 2, 0, 1),
    Sketcher.Constraint("Vertical", 0),
    Sketcher.Constraint("Horizontal", 1),
    Sketcher.Constraint("Vertical", 2),
    Sketcher.Constraint("Horizontal", 3),
    Sketcher.Constraint("Vertical", 4),
    Sketcher.Constraint("Coincident", 4, 1, 1, 2),
    Sketcher.Constraint("Horizontal", 3, 2, 4, 2),
    Sketcher.Constraint("DistanceX", 1, 2, -1, 1, Q("29 mm")),
    Sketcher.Constraint("DistanceX", 1, 1, 1, 2, Q("4.58 mm")),
    Sketcher.Constraint("DistanceY", -1, 1, 0, 2, Q("8.05 mm")),
    Sketcher.Constraint("DistanceY", 0, 1, 0, 2, Q("1.35219 mm")),
])
revolution = body.newObject("PartDesign::Revolution", "Revolution")
revolution.Profile = sketch27
revolution.ReferenceAxis = (sketch27, ["Axis0"])
revolution.Angle = 360

# Sketch on XZ plane
sketch28 = body.newObject("Sketcher::SketchObject", "Sketch027")
sketch28.AttachmentSupport = (doc.getObject("XZ_Plane"), [""])
sketch28.MapMode = "FlatFace"
sketch28.addGeometry([
    Part.LineSegment(App.Vector(29, 6.69781, 0), App.Vector(29, 8.05, 0)),
    Part.LineSegment(App.Vector(29, 8.05, 0), App.Vector(33.58, 8.05, 0)),
    Part.LineSegment(App.Vector(33.58, 8.05, 0), App.Vector(33.58, 6.69781, 0)),
    Part.LineSegment(App.Vector(33.58, 6.69781, 0), App.Vector(29, 6.69781, 0)),
], False)
sketch28.addGeometry(Part.LineSegment(App.Vector(29, 6.69781, 0), App.Vector(29, 8.05, 0)), True)  # axis
sketch28.addConstraint([
    Sketcher.Constraint("Coincident", 0, 2, 1, 1),
    Sketcher.Constraint("Coincident", 1, 2, 2, 1),
    Sketcher.Constraint("Coincident", 2, 2, 3, 1),
    Sketcher.Constraint("Coincident", 3, 2, 0, 1),
    Sketcher.Constraint("Vertical", 0),
    Sketcher.Constraint("Horizontal", 1),
    Sketcher.Constraint("Vertical", 2),
    Sketcher.Constraint("Horizontal", 3),
    Sketcher.Constraint("Vertical", 4),
    Sketcher.Constraint("Coincident", 4, 1, 3, 2),
    Sketcher.Constraint("Horizontal", 1, 2, 4, 2),
    Sketcher.Constraint("DistanceX", -1, 1, 0, 2, Q("29 mm")),
    Sketcher.Constraint("DistanceX", 1, 1, 1, 2, Q("4.58 mm")),
    Sketcher.Constraint("DistanceY", -1, 1, 0, 2, Q("8.05 mm")),
    Sketcher.Constraint("DistanceY", 0, 1, 0, 2, Q("1.35219 mm")),
])
revolution2 = body.newObject("PartDesign::Revolution", "Revolution001")
revolution2.Profile = sketch28
revolution2.ReferenceAxis = (sketch28, ["Axis0"])
revolution2.Angle = 360

# Sketch on XY plane
sketch29 = body.newObject("Sketcher::SketchObject", "Sketch028")
sketch29.AttachmentSupport = (doc.getObject("XY_Plane"), [""])
sketch29.MapMode = "FlatFace"
sketch29.AttachmentOffset = App.Placement(App.Vector(0, 0, 5.076113), App.Rotation())
sketch29.addGeometry([
    Part.Circle(App.Vector(29, 0, 0), App.Vector(0, 0, 1), 2.1),
    Part.Circle(App.Vector(-29, 0, 0), App.Vector(0, 0, 1), 2.1),
], False)
sketch29.addConstraint([
    Sketcher.Constraint("Equal", 0, 1),
    Sketcher.Constraint("Symmetric", 0, 3, 1, 3, -1, 1),
    Sketcher.Constraint("PointOnObject", 0, 3, -1),
    Sketcher.Constraint("Diameter", 0, Q("4.2 mm")),
    Sketcher.Constraint("DistanceX", -1, 1, 0, 3, Q("29 mm")),
])
doc.recompute()
hole = body.newObject("PartDesign::Hole", "Hole")
hole.Profile = sketch29
hole.ThreadType = "None"
hole.Diameter = 4.2
hole.DepthType = "ThroughAll"
hole.HoleCutType = "Counterbore"
hole.HoleCutDiameter = 8
hole.HoleCutDepth = 1.873887
hole.Reversed = True
doc.recompute()

fillet = body.newObject("PartDesign::Fillet", "Fillet")
fillet.Base = (hole, edges_at(hole, [
    (-45, -28.85, 0),
    (45, -28.85, 0),
    (45, 28.85, 0),
    (-45, 28.85, 0),
]))
fillet.Radius = 1.5

# Sketch on XZ plane
sketch30 = body.newObject("Sketcher::SketchObject", "Sketch029")
sketch30.AttachmentSupport = (doc.getObject("XZ_Plane"), [""])
sketch30.MapMode = "FlatFace"
sketch30.AttachmentOffset = App.Placement(App.Vector(0, 0, -28.85), App.Rotation())
sketch30.addGeometry([
    Part.LineSegment(App.Vector(-31.35, 4.05, 0), App.Vector(-31.35, 8.05, 0)),  # 0
    Part.LineSegment(App.Vector(-31.35, 8.05, 0), App.Vector(-29.35, 8.05, 0)),  # 1
    Part.LineSegment(App.Vector(-29.35, 8.05, 0), App.Vector(-29.35, 4.05, 0)),  # 2
    Part.LineSegment(App.Vector(-29.35, 4.05, 0), App.Vector(-31.35, 4.05, 0)),  # 3
    Part.LineSegment(App.Vector(-27.35, 4.05, 0), App.Vector(-27.35, 8.05, 0)),  # 4
    Part.LineSegment(App.Vector(-27.35, 8.05, 0), App.Vector(-25.35, 8.05, 0)),  # 5
    Part.LineSegment(App.Vector(-25.35, 8.05, 0), App.Vector(-25.35, 4.05, 0)),  # 6
    Part.LineSegment(App.Vector(-25.35, 4.05, 0), App.Vector(-27.35, 4.05, 0)),  # 7
], False)
sketch30.addConstraint([
    Sketcher.Constraint("Coincident", 0, 2, 1, 1),
    Sketcher.Constraint("Coincident", 1, 2, 2, 1),
    Sketcher.Constraint("Coincident", 2, 2, 3, 1),
    Sketcher.Constraint("Coincident", 3, 2, 0, 1),
    Sketcher.Constraint("Coincident", 4, 2, 5, 1),
    Sketcher.Constraint("Coincident", 5, 2, 6, 1),
    Sketcher.Constraint("Coincident", 6, 2, 7, 1),
    Sketcher.Constraint("Coincident", 7, 2, 4, 1),
    Sketcher.Constraint("Vertical", 0),
    Sketcher.Constraint("Horizontal", 1),
    Sketcher.Constraint("Vertical", 2),
    Sketcher.Constraint("Horizontal", 3),
    Sketcher.Constraint("Vertical", 4),
    Sketcher.Constraint("Horizontal", 5),
    Sketcher.Constraint("Vertical", 6),
    Sketcher.Constraint("Horizontal", 7),
    Sketcher.Constraint("Horizontal", 1, 2, 4, 2),
    Sketcher.Constraint("Horizontal", 3, 2, 6, 2),
    Sketcher.Constraint("Equal", 3, 5),
    Sketcher.Constraint("DistanceX", 1, 1, 1, 2, Q("2 mm")),
    Sketcher.Constraint("DistanceY", 0, 1, 0, 2, Q("4 mm")),
    Sketcher.Constraint("DistanceX", 1, 2, 4, 2, Q("2 mm")),
    Sketcher.Constraint("DistanceX", 0, 2, -1, 1, Q("31.35 mm")),
    Sketcher.Constraint("DistanceY", -1, 1, 0, 2, Q("8.05 mm")),
])
pocket13 = body.newObject("PartDesign::Pocket", "Pocket012")
pocket13.Profile = sketch30
pocket13.Length = 3.5
pocket13.Reversed = True

# Sketch on XZ plane
sketch31 = body.newObject("Sketcher::SketchObject", "Sketch030")
sketch31.AttachmentSupport = (doc.getObject("XZ_Plane"), [""])
sketch31.MapMode = "FlatFace"
sketch31.AttachmentOffset = App.Placement(App.Vector(0, 0, -25.35), App.Rotation())
sketch31.addGeometry([
    Part.Circle(App.Vector(-30.35, 6.641833, 0), App.Vector(0, 0, 1), 0.95),
    Part.Circle(App.Vector(-26.35, 6.641833, 0), App.Vector(0, 0, 1), 0.95),
], False)
sketch31.addConstraint([
    Sketcher.Constraint("Equal", 0, 1),
    Sketcher.Constraint("Horizontal", 0, 3, 1, 3),
    Sketcher.Constraint("Diameter", 0, Q("1.9 mm")),
    Sketcher.Constraint("DistanceX", 0, 3, 1, 3, Q("4 mm")),
    Sketcher.Constraint("DistanceX", 0, 3, -1, 1, Q("30.35 mm")),
    Sketcher.Constraint("DistanceY", -1, 1, 0, 3, Q("6.641833 mm")),
])
pad15 = body.newObject("PartDesign::Pad", "Pad014")
pad15.Profile = sketch31
pad15.Length = 5
pad15.Reversed = True

doc.recompute()
